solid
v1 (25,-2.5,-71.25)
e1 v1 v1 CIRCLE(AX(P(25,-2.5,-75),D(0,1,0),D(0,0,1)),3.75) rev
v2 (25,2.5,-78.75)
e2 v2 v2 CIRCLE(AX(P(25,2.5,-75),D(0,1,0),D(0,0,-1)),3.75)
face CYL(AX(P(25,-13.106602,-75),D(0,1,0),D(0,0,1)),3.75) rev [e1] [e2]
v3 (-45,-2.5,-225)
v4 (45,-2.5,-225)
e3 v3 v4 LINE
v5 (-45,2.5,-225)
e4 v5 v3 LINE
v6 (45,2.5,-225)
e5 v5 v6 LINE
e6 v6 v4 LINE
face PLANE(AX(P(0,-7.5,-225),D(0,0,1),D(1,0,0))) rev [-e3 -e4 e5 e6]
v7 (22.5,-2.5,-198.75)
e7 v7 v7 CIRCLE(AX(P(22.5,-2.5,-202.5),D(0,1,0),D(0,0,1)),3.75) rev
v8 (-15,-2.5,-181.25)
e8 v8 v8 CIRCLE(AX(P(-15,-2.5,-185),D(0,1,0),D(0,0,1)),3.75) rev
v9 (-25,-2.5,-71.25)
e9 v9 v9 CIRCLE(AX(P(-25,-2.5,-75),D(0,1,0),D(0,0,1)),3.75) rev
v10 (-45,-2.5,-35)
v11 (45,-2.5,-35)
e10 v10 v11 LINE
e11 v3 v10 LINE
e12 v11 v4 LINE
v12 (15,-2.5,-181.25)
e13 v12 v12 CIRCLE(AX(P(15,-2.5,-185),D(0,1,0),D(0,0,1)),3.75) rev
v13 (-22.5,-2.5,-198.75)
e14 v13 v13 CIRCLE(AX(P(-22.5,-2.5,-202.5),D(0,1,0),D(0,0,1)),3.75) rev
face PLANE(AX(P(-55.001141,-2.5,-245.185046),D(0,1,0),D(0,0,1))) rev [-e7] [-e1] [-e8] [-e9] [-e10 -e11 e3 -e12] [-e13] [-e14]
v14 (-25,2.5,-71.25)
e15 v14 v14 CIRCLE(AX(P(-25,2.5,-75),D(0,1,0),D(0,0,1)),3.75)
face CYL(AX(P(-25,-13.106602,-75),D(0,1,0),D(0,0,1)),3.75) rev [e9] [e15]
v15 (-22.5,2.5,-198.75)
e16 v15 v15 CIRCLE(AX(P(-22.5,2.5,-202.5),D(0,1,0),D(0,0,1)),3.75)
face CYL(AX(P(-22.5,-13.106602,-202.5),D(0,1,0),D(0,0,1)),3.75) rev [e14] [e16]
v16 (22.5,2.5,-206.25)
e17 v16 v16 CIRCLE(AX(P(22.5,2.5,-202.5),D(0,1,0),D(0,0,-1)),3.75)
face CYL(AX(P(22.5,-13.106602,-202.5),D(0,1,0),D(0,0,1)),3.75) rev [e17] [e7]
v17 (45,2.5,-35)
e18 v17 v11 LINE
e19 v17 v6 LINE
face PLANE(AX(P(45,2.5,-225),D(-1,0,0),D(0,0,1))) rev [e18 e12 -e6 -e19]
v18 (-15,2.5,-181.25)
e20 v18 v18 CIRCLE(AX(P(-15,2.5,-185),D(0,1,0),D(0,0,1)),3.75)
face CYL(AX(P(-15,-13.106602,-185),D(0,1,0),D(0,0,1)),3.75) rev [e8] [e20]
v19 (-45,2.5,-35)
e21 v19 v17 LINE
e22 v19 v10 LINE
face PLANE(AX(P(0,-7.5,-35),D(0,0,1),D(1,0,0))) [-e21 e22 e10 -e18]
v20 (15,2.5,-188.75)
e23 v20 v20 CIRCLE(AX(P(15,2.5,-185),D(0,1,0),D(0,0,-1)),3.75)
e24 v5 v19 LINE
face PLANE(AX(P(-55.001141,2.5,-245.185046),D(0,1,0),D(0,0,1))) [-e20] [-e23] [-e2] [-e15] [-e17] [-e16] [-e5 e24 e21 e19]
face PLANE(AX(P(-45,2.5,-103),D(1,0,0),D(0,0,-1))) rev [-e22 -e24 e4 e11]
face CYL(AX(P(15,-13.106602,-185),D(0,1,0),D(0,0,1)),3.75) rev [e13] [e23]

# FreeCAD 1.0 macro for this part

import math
import FreeCAD as App
import Part
import Sketcher
from FreeCAD import Vector
Q = App.Units.Quantity

doc = App.newDocument("Part")
params = doc.addObject("Spreadsheet::Sheet", "Params")
for row, (alias, value) in enumerate([
    ("sketch1_radius", "5 mm"),
    ("sketch1_radius2", "10 mm"),
    ("sketch1_radius3", "15 mm"),
    ("sketch1_width", "20 mm"),
    ("sketch1_width2", "120 mm"),
    ("pad1_length", "5 mm"),
    ("sketch2_diameter", "7.5 mm"),
    ("pocket1_length", "5 mm"),
    ("sketch3_radius", "10 mm"),
    ("sketch3_radius2", "5 mm"),
    ("sketch3_radius3", "15 mm"),
    ("sketch3_width", "15 mm"),
    ("sketch3_width2", "130 mm"),
    ("pocket2_length", "10 mm"),
], start=1):
    params.set(f"A{row}", alias)
    params.set(f"B{row}", "=" + value)
    params.setAlias(f"B{row}", alias)

body = doc.addObject("PartDesign::Body", "Body")

sketch1 = doc.addObject("Sketcher::SketchObject", "Sketch")
body.addObject(sketch1)
sketch1.AttachmentSupport = (doc.XZ_Plane, [""])
sketch1.MapMode = "FlatFace"
sketch1.addGeometry([
    Part.LineSegment(Vector(70, -10, 0), Vector(70, -30, 0)),
    Part.ArcOfCircle(Part.Circle(Vector(65, -30, 0), Vector(0, 0, 1), 5), math.radians(-90), math.radians(0)),
    Part.LineSegment(Vector(65, -35, 0), Vector(45, -35, 0)),
    Part.LineSegment(Vector(45, -35, 0), Vector(45, -103, 0)),
    Part.LineSegment(Vector(45, -103, 0), Vector(60, -103, 0)),
    Part.ArcOfCircle(Part.Circle(Vector(60, -113, 0), Vector(0, 0, 1), 10), math.radians(0), math.radians(90)),
    Part.LineSegment(Vector(70, -113, 0), Vector(70, -147, 0)),
    Part.ArcOfCircle(Part.Circle(Vector(60, -147, 0), Vector(0, 0, 1), 10), math.radians(-90), math.radians(0)),
    Part.LineSegment(Vector(60, -157, 0), Vector(45, -157, 0)),
    Part.LineSegment(Vector(45, -157, 0), Vector(45, -225, 0)),
    Part.LineSegment(Vector(45, -225, 0), Vector(65.1, -225, 0)),
    Part.ArcOfCircle(Part.Circle(Vector(65.1, -230, 0), Vector(0, 0, 1), 5), math.radians(9), math.radians(90)),
    Part.LineSegment(Vector(70, -229.2, 0), Vector(70, -245, 0)),
    Part.ArcOfCircle(Part.Circle(Vector(55, -245.2, 0), Vector(0, 0, 1), 15), math.radians(-81), math.radians(1)),
    Part.LineSegment(Vector(57.4, -260, 0), Vector(-57.4, -260, 0)),
    Part.ArcOfCircle(Part.Circle(Vector(-55, -245.2, 0), Vector(0, 0, 1), 15), math.radians(179), math.radians(261)),
    Part.LineSegment(Vector(-70, -245, 0), Vector(-70, -229.2, 0)),
    Part.ArcOfCircle(Part.Circle(Vector(-65.1, -230, 0), Vector(0, 0, 1), 5), math.radians(90), math.radians(171)),
    Part.LineSegment(Vector(-65.1, -225, 0), Vector(-45, -225, 0)),
    Part.LineSegment(Vector(-45, -225, 0), Vector(-45, -157, 0)),
    Part.LineSegment(Vector(-45, -157, 0), Vector(-60, -157, 0)),
    Part.ArcOfCircle(Part.Circle(Vector(-60, -147, 0), Vector(0, 0, 1), 10), math.radians(180), math.radians(270)),
    Part.LineSegment(Vector(-70, -147, 0), Vector(-70, -113, 0)),
    Part.ArcOfCircle(Part.Circle(Vector(-60, -113, 0), Vector(0, 0, 1), 10), math.radians(90), math.radians(180)),
    Part.LineSegment(Vector(-60, -103, 0), Vector(-45, -103, 0)),
    Part.LineSegment(Vector(-45, -103, 0), Vector(-45, -35, 0)),
    Part.LineSegment(Vector(-45, -35, 0), Vector(-65, -35, 0)),
    Part.ArcOfCircle(Part.Circle(Vector(-65, -30, 0), Vector(0, 0, 1), 5), math.radians(180), math.radians(270)),
    Part.LineSegment(Vector(-70, -30, 0), Vector(-70, -10, 0)),
    Part.ArcOfCircle(Part.Circle(Vector(-60, -10, 0), Vector(0, 0, 1), 10), math.radians(90), math.radians(180)),
    Part.LineSegment(Vector(-60, 0, 0), Vector(60, 0, 0)),
    Part.ArcOfCircle(Part.Circle(Vector(60, -10, 0), Vector(0, 0, 1), 10), math.radians(0), math.radians(90)),
], False)
sketch1.addConstraint([
    Sketcher.Constraint("Tangent", 0, 2, 1, 2),
    Sketcher.Constraint("Tangent", 1, 1, 2, 1),
    Sketcher.Constraint("Coincident", 2, 2, 3, 1),
    Sketcher.Constraint("Coincident", 3, 2, 4, 1),
    Sketcher.Constraint("Tangent", 4, 2, 5, 2),
    Sketcher.Constraint("Tangent", 5, 1, 6, 1),
    Sketcher.Constraint("Tangent", 6, 2, 7, 2),
    Sketcher.Constraint("Tangent", 7, 1, 8, 1),
    Sketcher.Constraint("Coincident", 8, 2, 9, 1),
    Sketcher.Constraint("Coincident", 9, 2, 10, 1),
    Sketcher.Constraint("Tangent", 10, 2, 11, 2),
    Sketcher.Constraint("Coincident", 11, 1, 12, 1),
    Sketcher.Constraint("Coincident", 12, 2, 13, 2),
    Sketcher.Constraint("Coincident", 13, 1, 14, 1),
    Sketcher.Constraint("Coincident", 14, 2, 15, 2),
    Sketcher.Constraint("Coincident", 15, 1, 16, 1),
    Sketcher.Constraint("Coincident", 16, 2, 17, 2),
    Sketcher.Constraint("Tangent", 17, 1, 18, 1),
    Sketcher.Constraint("Coincident", 18, 2, 19, 1),
    Sketcher.Constraint("Coincident", 19, 2, 20, 1),
    Sketcher.Constraint("Tangent", 20, 2, 21, 2),
    Sketcher.Constraint("Tangent", 21, 1, 22, 1),
    Sketcher.Constraint("Tangent", 22, 2, 23, 2),
    Sketcher.Constraint("Tangent", 23, 1, 24, 1),
    Sketcher.Constraint("Coincident", 24, 2, 25, 1),
    Sketcher.Constraint("Coincident", 25, 2, 26, 1),
    Sketcher.Constraint("Tangent", 26, 2, 27, 2),
    Sketcher.Constraint("Tangent", 27, 1, 28, 1),
    Sketcher.Constraint("Tangent", 28, 2, 29, 2),
    Sketcher.Constraint("Tangent", 29, 1, 30, 1),
    Sketcher.Constraint("Tangent", 30, 2, 31, 2),
    Sketcher.Constraint("Tangent", 31, 1, 0, 1),
    Sketcher.Constraint("Vertical", 0),
    Sketcher.Constraint("Horizontal", 2),
    Sketcher.Constraint("Vertical", 3),
    Sketcher.Constraint("Horizontal", 4),
    Sketcher.Constraint("Vertical", 6),
    Sketcher.Constraint("Horizontal", 8),
    Sketcher.Constraint("Vertical", 9),
    Sketcher.Constraint("Horizontal", 10),
    Sketcher.Constraint("Vertical", 12),
    Sketcher.Constraint("Horizontal", 14),
    Sketcher.Constraint("Vertical", 16),
    Sketcher.Constraint("Horizontal", 18),
    Sketcher.Constraint("Vertical", 19),
    Sketcher.Constraint("Horizontal", 20),
    Sketcher.Constraint("Vertical", 22),
    Sketcher.Constraint("Horizontal", 24),
    Sketcher.Constraint("Vertical", 25),
    Sketcher.Constraint("Horizontal", 26),
    Sketcher.Constraint("Vertical", 28),
    Sketcher.Constraint("Horizontal", 30),
    Sketcher.Constraint("Equal", 5, 7),
    Sketcher.Constraint("Equal", 1, 11),
    Sketcher.Constraint("Equal", 13, 15),
    Sketcher.Constraint("Equal", 11, 17),
    Sketcher.Constraint("Equal", 7, 21),
    Sketcher.Constraint("Equal", 21, 23),
    Sketcher.Constraint("Equal", 17, 27),
    Sketcher.Constraint("Equal", 23, 29),
    Sketcher.Constraint("Equal", 29, 31),
    Sketcher.Constraint("Symmetric", 29, 1, 30, 2, -1, 1),
    Sketcher.Constraint("Symmetric", 13, 3, 15, 3, -2),
    Sketcher.Constraint("Symmetric", 11, 3, 17, 3, -2),
    Sketcher.Constraint("Symmetric", 7, 3, 21, 3, -2),
    Sketcher.Constraint("Symmetric", 3, 2, 24, 2, -2),
    Sketcher.Constraint("Horizontal", 1, 3, 27, 3),
    Sketcher.Constraint("Horizontal", 12, 2, 15, 1),
    Sketcher.Constraint("Vertical", 23, 3, 29, 3),
    Sketcher.Constraint("Vertical", 3, 2, 8, 2),
    Sketcher.Constraint("Vertical", 6, 2, 11, 1),
    Sketcher.Constraint("Vertical", 19, 2, 24, 2),
    Sketcher.Constraint("Equal", 26, 0),
    Sketcher.Constraint("Equal", 3, 9),
    Sketcher.Constraint("Radius", 1, Q("5 mm")),
    Sketcher.Constraint("Radius", 5, Q("10 mm")),
    Sketcher.Constraint("Radius", 13, Q("15 mm")),
    Sketcher.Constraint("DistanceX", 2, 2, 2, 1, Q("20 mm")),
    Sketcher.Constraint("DistanceX", 30, 1, 30, 2, Q("120 mm")),
    Sketcher.Constraint("DistanceY", 3, 2, 3, 1, Q("68 mm")),
    Sketcher.Constraint("DistanceY", 6, 2, 6, 1, Q("34 mm")),
    Sketcher.Constraint("DistanceX", 14, 2, 14, 1, Q("114.7 mm")),
    Sketcher.Constraint("DistanceY", 12, 2, 12, 1, Q("15.8 mm")),
    Sketcher.Constraint("DistanceY", 12, 2, -1, 1, Q("245 mm")),
    Sketcher.Constraint("DistanceY", 13, 1, -1, 1, Q("260 mm")),
])
sketch1.setExpression("Constraints[74]", "Params.sketch1_radius")
sketch1.setExpression("Constraints[75]", "Params.sketch1_radius2")
sketch1.setExpression("Constraints[76]", "Params.sketch1_radius3")
sketch1.setExpression("Constraints[77]", "Params.sketch1_width")
sketch1.setExpression("Constraints[78]", "Params.sketch1_width2")
pad1 = doc.addObject("PartDesign::Pad", "Pad")
body.addObject(pad1)
pad1.Profile = sketch1
pad1.setExpression("Length", "Params.pad1_length")
pad1.Midplane = True

sketch2 = doc.addObject("Sketcher::SketchObject", "Sketch001")
body.addObject(sketch2)
sketch2.AttachmentSupport = (doc.XZ_Plane, [""])
sketch2.MapMode = "FlatFace"
sketch2.AttachmentOffset = App.Placement(Vector(0, 0, -2.5), App.Rotation())
sketch2.addGeometry([
    Part.Circle(Vector(-25, -75, 0), Vector(0, 0, 1), 3.8),
    Part.Circle(Vector(-22.5, -202.5, 0), Vector(0, 0, 1), 3.8),
    Part.Circle(Vector(-15, -185, 0), Vector(0, 0, 1), 3.8),
    Part.Circle(Vector(25, -75, 0), Vector(0, 0, 1), 3.8),
    Part.Circle(Vector(15, -185, 0), Vector(0, 0, 1), 3.8),
    Part.Circle(Vector(22.5, -202.5, 0), Vector(0, 0, 1), 3.8),
], False)
sketch2.addConstraint([
    Sketcher.Constraint("Equal", 0, 1),
    Sketcher.Constraint("Equal", 1, 2),
    Sketcher.Constraint("Equal", 2, 3),
    Sketcher.Constraint("Equal", 3, 4),
    Sketcher.Constraint("Equal", 4, 5),
    Sketcher.Constraint("Symmetric", 0, 3, 3, 3, -2),
    Sketcher.Constraint("Symmetric", 2, 3, 4, 3, -2),
    Sketcher.Constraint("Symmetric", 1, 3, 5, 3, -2),
    Sketcher.Constraint("Diameter", 0, Q("7.5 mm")),
    Sketcher.Constraint("DistanceX", 0, 3, -1, 1, Q("25 mm")),
    Sketcher.Constraint("DistanceY", 0, 3, -1, 1, Q("75 mm")),
    Sketcher.Constraint("DistanceX", 2, 3, -1, 1, Q("15 mm")),
    Sketcher.Constraint("DistanceY", 2, 3, -1, 1, Q("185 mm")),
    Sketcher.Constraint("DistanceX", 1, 3, 5, 3, Q("45 mm")),
    Sketcher.Constraint("DistanceY", 1, 3, -1, 1, Q("202.5 mm")),
])
sketch2.setExpression("Constraints[8]", "Params.sketch2_diameter")
pocket1 = doc.addObject("PartDesign::Pocket", "Pocket")
body.addObject(pocket1)
pocket1.Profile = sketch2
pocket1.setExpression("Length", "Params.pocket1_length")
pocket1.Reversed = True

sketch3 = doc.addObject("Sketcher::SketchObject", "Sketch002")
body.addObject(sketch3)
sketch3.AttachmentSupport = (doc.XZ_Plane, [""])
sketch3.MapMode = "FlatFace"
sketch3.AttachmentOffset = App.Placement(Vector(0, 0, -2.5), App.Rotation())
sketch3.addGeometry([
    Part.LineSegment(Vector(-45, -103, 0), Vector(-45, -157, 0)),
    Part.LineSegment(Vector(-45, -157, 0), Vector(-60, -157, 0)),
    Part.ArcOfCircle(Part.Circle(Vector(-60, -147, 0), Vector(0, 0, 1), 10), math.radians(180), math.radians(270)),
    Part.LineSegment(Vector(-70, -147, 0), Vector(-70, -113, 0)),
    Part.ArcOfCircle(Part.Circle(Vector(-60, -113, 0), Vector(0, 0, 1), 10), math.radians(90), math.radians(180)),
    Part.LineSegment(Vector(-60, -103, 0), Vector(-45, -103, 0)),
    Part.ArcOfCircle(Part.Circle(Vector(65, -30, 0), Vector(0, 0, 1), 5), math.radians(-90), math.radians(0)),
    Part.LineSegment(Vector(65, -35, 0), Vector(-65, -35, 0)),
    Part.ArcOfCircle(Part.Circle(Vector(-65, -30, 0), Vector(0, 0, 1), 5), math.radians(180), math.radians(270)),
    Part.LineSegment(Vector(-70, -30, 0), Vector(-70, -10, 0)),
    Part.ArcOfCircle(Part.Circle(Vector(-60, -10, 0), Vector(0, 0, 1), 10), math.radians(90), math.radians(180)),
    Part.LineSegment(Vector(-60, 0, 0), Vector(60, 0, 0)),
    Part.ArcOfCircle(Part.Circle(Vector(60, -10, 0), Vector(0, 0, 1), 10), math.radians(0), math.radians(90)),
    Part.LineSegment(Vector(70, -10, 0), Vector(70, -30, 0)),
    Part.LineSegment(Vector(45, -157, 0), Vector(45, -103, 0)),
    Part.LineSegment(Vector(45, -103, 0), Vector(60, -103, 0)),
    Part.ArcOfCircle(Part.Circle(Vector(60, -113, 0), Vector(0, 0, 1), 10), math.radians(0), math.radians(90)),
    Part.LineSegment(Vector(70, -113, 0), Vector(70, -147, 0)),
    Part.ArcOfCircle(Part.Circle(Vector(60, -147, 0), Vector(0, 0, 1), 10), math.radians(-90), math.radians(0)),
    Part.LineSegment(Vector(60, -157, 0), Vector(45, -157, 0)),
    Part.ArcOfCircle(Part.Circle(Vector(65.1, -230, 0), Vector(0, 0, 1), 5), math.radians(9), math.radians(90)),
    Part.LineSegment(Vector(70, -229.2, 0), Vector(70, -245, 0)),
    Part.ArcOfCircle(Part.Circle(Vector(55, -245.2, 0), Vector(0, 0, 1), 15), math.radians(-81), math.radians(1)),
    Part.LineSegment(Vector(57.4, -260, 0), Vector(-57.4, -260, 0)),
    Part.ArcOfCircle(Part.Circle(Vector(-55, -245.2, 0), Vector(0, 0, 1), 15), math.radians(179), math.radians(261)),
    Part.LineSegment(Vector(-70, -245, 0), Vector(-70, -229.2, 0)),
    Part.ArcOfCircle(Part.Circle(Vector(-65.1, -230, 0), Vector(0, 0, 1), 5), math.radians(90), math.radians(171)),
    Part.LineSegment(Vector(-65.1, -225, 0), Vector(65.1, -225, 0)),
], False)
sketch3.addConstraint([
    Sketcher.Constraint("Coincident", 0, 2, 1, 1),
    Sketcher.Constraint("Tangent", 1, 2, 2, 2),
    Sketcher.Constraint("Tangent", 2, 1, 3, 1),
    Sketcher.Constraint("Tangent", 3, 2, 4, 2),
    Sketcher.Constraint("Tangent", 4, 1, 5, 1),
    Sketcher.Constraint("Coincident", 5, 2, 0, 1),
    Sketcher.Constraint("Tangent", 6, 1, 7, 1),
    Sketcher.Constraint("Tangent", 7, 2, 8, 2),
    Sketcher.Constraint("Tangent", 8, 1, 9, 1),
    Sketcher.Constraint("Tangent", 9, 2, 10, 2),
    Sketcher.Constraint("Tangent", 10, 1, 11, 1),
    Sketcher.Constraint("Tangent", 11, 2, 12, 2),
    Sketcher.Constraint("Tangent", 12, 1, 13, 1),
    Sketcher.Constraint("Tangent", 13, 2, 6, 2),
    Sketcher.Constraint("Coincident", 14, 2, 15, 1),
    Sketcher.Constraint("Tangent", 15, 2, 16, 2),
    Sketcher.Constraint("Tangent", 16, 1, 17, 1),
    Sketcher.Constraint("Tangent", 17, 2, 18, 2),
    Sketcher.Constraint("Tangent", 18, 1, 19, 1),
    Sketcher.Constraint("Coincident", 19, 2, 14, 1),
    Sketcher.Constraint("Coincident", 20, 1, 21, 1),
    Sketcher.Constraint("Coincident", 21, 2, 22, 2),
    Sketcher.Constraint("Coincident", 22, 1, 23, 1),
    Sketcher.Constraint("Coincident", 23, 2, 24, 2),
    Sketcher.Constraint("Coincident", 24, 1, 25, 1),
    Sketcher.Constraint("Coincident", 25, 2, 26, 2),
    Sketcher.Constraint("Tangent", 26, 1, 27, 1),
    Sketcher.Constraint("Tangent", 27, 2, 20, 2),
    Sketcher.Constraint("Vertical", 0),
    Sketcher.Constraint("Horizontal", 1),
    Sketcher.Constraint("Vertical", 3),
    Sketcher.Constraint("Horizontal", 5),
    Sketcher.Constraint("Horizontal", 7),
    Sketcher.Constraint("Vertical", 9),
    Sketcher.Constraint("Horizontal", 11),
    Sketcher.Constraint("Vertical", 13),
    Sketcher.Constraint("Vertical", 14),
    Sketcher.Constraint("Horizontal", 15),
    Sketcher.Constraint("Vertical", 17),
    Sketcher.Constraint("Horizontal", 19),
    Sketcher.Constraint("Vertical", 21),
    Sketcher.Constraint("Horizontal", 23),
    Sketcher.Constraint("Vertical", 25),
    Sketcher.Constraint("Horizontal", 27),
    Sketcher.Constraint("Equal", 2, 4),
    Sketcher.Constraint("Equal", 6, 8),
    Sketcher.Constraint("Equal", 4, 10),
    Sketcher.Constraint("Equal", 10, 12),
    Sketcher.Constraint("Equal", 12, 16),
    Sketcher.Constraint("Equal", 16, 18),
    Sketcher.Constraint("Equal", 8, 20),
    Sketcher.Constraint("Equal", 22, 24),
    Sketcher.Constraint("Equal", 20, 26),
    Sketcher.Constraint("Symmetric", 10, 1, 11, 2, -1, 1),
    Sketcher.Constraint("Symmetric", 4, 3, 16, 3, -2),
    Sketcher.Constraint("Symmetric", 22, 3, 24, 3, -2),
    Sketcher.Constraint("Symmetric", 0, 2, 19, 2, -2),
    Sketcher.Constraint("Symmetric", 20, 1, 25, 2, -2),
    Sketcher.Constraint("Vertical", 4, 3, 10, 3),
    Sketcher.Constraint("Vertical", 17, 2, 20, 1),
    Sketcher.Constraint("Radius", 2, Q("10 mm")),
    Sketcher.Constraint("Radius", 6, Q("5 mm")),
    Sketcher.Constraint("Radius", 22, Q("15 mm")),
    Sketcher.Constraint("DistanceX", 1, 2, 1, 1, Q("15 mm")),
    Sketcher.Constraint("DistanceX", 7, 2, 7, 1, Q("130 mm")),
    Sketcher.Constraint("DistanceY", 0, 2, 0, 1, Q("54 mm")),
    Sketcher.Constraint("DistanceY", 9, 1, 9, 2, Q("20 mm")),
    Sketcher.Constraint("DistanceX", 23, 2, 23, 1, Q("114.7 mm")),
    Sketcher.Constraint("DistanceY", 21, 2, 21, 1, Q("15.8 mm")),
    Sketcher.Constraint("DistanceY", 2, 3, -1, 1, Q("147 mm")),
    Sketcher.Constraint("DistanceY", 20, 3, -1, 1, Q("230 mm")),
    Sketcher.Constraint("DistanceY", 21, 2, -1, 1, Q("245 mm")),
    Sketcher.Constraint("DistanceY", 22, 1, -1, 1, Q("260 mm")),
])
sketch3.setExpression("Constraints[60]", "Params.sketch3_radius")
sketch3.setExpression("Constraints[61]", "Params.sketch3_radius2")
sketch3.setExpression("Constraints[62]", "Params.sketch3_radius3")
sketch3.setExpression("Constraints[63]", "Params.sketch3_width")
sketch3.setExpression("Constraints[64]", "Params.sketch3_width2")
pocket2 = doc.addObject("PartDesign::Pocket", "Pocket001")
body.addObject(pocket2)
pocket2.Profile = sketch3
pocket2.setExpression("Length", "Params.pocket2_length")
pocket2.Reversed = True

doc.recompute()
